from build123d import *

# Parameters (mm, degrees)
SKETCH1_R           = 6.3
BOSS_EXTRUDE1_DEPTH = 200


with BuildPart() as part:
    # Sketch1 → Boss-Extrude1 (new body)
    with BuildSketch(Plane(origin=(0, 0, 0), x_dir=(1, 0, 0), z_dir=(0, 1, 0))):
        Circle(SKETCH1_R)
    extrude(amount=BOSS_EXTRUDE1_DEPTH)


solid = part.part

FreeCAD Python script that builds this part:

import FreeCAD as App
import Part
import Sketcher

V = App.Vector

doc = App.newDocument("Part")
body = doc.addObject("PartDesign::Body", "Body")

# Sketch on XZ plane
sketch1 = doc.addObject("Sketcher::SketchObject", "Sketch")
body.addObject(sketch1)
sketch1.AttachmentSupport = (doc.XZ_Plane, [""])
sketch1.MapMode = "FlatFace"
sketch1.addGeometry(Part.Circle(V(0, 0, 0), V(0, 0, 1), 6.3), False)
sketch1.addConstraint([
    Sketcher.Constraint("Coincident", 0, 3, -1, 1),
    Sketcher.Constraint("Diameter", 0, 12.6),
])
pad1 = doc.addObject("PartDesign::Pad", "Pad")
body.addObject(pad1)
pad1.Profile = sketch1
pad1.Length = 200
pad1.Reversed = True

doc.recompute()
